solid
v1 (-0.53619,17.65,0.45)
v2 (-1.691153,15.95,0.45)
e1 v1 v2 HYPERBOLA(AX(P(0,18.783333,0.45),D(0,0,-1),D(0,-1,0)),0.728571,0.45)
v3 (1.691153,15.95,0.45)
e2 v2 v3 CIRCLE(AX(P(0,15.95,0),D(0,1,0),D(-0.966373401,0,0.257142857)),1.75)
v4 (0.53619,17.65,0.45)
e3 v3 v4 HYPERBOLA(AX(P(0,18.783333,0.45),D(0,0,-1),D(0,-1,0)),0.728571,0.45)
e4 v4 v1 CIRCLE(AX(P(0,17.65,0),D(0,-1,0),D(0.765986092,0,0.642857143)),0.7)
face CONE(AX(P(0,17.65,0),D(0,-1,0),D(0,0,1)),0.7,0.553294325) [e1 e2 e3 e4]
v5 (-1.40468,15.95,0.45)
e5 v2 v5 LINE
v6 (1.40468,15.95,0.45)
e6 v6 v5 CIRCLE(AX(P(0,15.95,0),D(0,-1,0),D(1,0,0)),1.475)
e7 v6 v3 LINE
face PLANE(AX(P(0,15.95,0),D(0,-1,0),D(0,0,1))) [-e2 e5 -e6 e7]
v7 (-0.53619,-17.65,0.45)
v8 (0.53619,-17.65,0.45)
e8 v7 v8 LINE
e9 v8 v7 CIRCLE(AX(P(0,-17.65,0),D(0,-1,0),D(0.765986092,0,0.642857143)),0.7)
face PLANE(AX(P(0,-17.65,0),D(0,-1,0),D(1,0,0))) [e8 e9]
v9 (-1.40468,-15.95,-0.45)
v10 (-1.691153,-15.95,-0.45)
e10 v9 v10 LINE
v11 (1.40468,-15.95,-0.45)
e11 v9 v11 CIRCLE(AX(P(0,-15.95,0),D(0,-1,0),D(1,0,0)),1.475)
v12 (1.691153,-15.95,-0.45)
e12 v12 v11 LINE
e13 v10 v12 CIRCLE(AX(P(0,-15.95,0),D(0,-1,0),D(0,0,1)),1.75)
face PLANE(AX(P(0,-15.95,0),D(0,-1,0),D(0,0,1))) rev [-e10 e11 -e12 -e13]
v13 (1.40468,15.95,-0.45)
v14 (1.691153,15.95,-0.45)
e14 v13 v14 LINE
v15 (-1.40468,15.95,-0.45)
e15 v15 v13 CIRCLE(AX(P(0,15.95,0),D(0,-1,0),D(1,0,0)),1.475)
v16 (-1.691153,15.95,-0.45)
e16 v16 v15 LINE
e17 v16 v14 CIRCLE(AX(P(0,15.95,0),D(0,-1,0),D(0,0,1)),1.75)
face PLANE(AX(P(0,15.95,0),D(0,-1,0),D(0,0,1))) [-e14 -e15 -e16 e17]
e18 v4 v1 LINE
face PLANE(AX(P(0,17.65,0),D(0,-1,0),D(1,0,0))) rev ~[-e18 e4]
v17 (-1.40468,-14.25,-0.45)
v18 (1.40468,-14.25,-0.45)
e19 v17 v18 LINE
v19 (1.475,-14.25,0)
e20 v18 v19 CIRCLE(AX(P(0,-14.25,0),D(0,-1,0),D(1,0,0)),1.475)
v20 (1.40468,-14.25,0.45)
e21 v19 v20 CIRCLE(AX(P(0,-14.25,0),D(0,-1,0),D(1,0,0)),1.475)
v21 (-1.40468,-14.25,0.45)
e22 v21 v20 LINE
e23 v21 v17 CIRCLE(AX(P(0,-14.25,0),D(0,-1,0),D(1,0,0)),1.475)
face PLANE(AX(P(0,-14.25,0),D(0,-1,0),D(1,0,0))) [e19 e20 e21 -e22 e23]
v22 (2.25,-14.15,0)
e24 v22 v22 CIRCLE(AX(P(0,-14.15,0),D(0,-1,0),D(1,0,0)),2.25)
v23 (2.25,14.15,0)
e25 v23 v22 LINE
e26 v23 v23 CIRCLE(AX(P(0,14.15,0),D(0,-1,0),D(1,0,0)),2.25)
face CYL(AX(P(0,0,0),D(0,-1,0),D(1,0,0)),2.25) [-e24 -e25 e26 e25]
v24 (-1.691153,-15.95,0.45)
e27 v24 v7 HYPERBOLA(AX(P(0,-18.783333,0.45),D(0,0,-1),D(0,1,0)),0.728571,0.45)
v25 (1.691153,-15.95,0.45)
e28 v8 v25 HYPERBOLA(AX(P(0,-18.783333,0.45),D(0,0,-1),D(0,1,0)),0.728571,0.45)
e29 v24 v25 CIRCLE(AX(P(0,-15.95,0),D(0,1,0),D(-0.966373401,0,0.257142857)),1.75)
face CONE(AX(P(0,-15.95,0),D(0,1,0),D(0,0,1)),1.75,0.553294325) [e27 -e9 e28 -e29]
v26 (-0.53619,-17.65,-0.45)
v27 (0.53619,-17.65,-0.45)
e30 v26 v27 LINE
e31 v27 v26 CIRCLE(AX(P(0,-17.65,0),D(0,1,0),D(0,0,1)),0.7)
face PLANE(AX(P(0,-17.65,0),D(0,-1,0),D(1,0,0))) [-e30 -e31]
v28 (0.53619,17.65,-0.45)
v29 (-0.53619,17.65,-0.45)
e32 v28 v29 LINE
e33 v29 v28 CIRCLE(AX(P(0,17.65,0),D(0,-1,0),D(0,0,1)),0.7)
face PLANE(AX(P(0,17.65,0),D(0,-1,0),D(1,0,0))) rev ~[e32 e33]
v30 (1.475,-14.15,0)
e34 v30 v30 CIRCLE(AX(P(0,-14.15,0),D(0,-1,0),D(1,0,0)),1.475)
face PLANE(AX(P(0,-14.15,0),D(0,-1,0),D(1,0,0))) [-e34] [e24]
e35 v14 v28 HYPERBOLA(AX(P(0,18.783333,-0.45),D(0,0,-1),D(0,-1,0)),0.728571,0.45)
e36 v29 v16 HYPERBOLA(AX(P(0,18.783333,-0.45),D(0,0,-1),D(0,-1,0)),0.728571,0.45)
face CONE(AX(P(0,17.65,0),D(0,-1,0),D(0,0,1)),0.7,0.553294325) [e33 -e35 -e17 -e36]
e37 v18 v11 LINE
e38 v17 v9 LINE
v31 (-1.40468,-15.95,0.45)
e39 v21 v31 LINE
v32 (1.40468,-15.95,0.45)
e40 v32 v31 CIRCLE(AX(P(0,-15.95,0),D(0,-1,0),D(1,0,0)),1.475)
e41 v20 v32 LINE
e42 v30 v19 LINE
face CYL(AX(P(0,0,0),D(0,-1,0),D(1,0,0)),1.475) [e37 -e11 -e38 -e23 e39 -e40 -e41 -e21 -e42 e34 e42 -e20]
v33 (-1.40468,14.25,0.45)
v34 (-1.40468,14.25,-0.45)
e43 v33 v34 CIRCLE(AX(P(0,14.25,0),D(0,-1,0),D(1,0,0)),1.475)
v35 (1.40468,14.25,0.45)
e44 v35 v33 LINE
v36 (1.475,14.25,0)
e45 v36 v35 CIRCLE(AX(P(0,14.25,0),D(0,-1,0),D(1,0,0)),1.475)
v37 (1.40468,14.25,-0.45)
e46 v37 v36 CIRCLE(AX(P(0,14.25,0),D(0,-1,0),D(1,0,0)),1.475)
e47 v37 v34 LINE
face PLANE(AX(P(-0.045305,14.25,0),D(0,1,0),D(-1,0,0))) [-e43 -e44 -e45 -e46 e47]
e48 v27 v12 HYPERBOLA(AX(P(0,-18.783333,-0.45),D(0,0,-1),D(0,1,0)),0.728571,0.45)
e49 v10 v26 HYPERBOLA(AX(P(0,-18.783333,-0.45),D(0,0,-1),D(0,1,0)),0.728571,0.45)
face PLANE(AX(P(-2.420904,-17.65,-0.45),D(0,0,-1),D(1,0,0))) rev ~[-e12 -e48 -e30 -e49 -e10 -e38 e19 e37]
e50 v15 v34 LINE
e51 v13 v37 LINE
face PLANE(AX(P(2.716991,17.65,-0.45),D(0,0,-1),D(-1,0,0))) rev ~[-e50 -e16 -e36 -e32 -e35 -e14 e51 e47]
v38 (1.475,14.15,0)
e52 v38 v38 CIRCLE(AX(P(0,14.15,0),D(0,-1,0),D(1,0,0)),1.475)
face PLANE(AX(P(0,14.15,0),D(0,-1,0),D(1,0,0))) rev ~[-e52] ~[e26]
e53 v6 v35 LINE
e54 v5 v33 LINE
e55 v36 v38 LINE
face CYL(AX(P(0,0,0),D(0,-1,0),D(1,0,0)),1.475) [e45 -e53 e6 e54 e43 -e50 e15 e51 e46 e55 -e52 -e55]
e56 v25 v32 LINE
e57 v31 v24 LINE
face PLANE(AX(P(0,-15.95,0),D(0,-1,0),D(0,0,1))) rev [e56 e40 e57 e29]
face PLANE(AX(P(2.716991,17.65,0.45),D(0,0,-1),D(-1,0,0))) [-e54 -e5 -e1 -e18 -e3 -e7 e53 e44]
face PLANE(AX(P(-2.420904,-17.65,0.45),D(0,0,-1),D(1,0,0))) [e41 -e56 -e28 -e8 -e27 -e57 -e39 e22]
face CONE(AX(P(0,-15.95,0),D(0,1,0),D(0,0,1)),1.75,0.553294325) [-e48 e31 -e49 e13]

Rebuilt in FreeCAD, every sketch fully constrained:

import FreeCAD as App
import Part
import Sketcher


def add_polygon(sketch, points):
    """Adds a closed chain of lines whose ends are joined by coincident constraints."""
    first, n = sketch.GeometryCount, len(points)
    for a, b in zip(points, points[1:] + points[:1]):
        sketch.addGeometry(Part.LineSegment(App.Vector(*a, 0), App.Vector(*b, 0)), False)
    for i in range(n):
        sketch.addConstraint(Sketcher.Constraint("Coincident", first + i, 2, first + (i + 1) % n, 1))

doc = App.newDocument("Part")
params = doc.addObject("Spreadsheet::Sheet", "Params")
for row, (alias, value) in enumerate([
    ("sketch1_diameter", "1.4 mm"),
    ("pad1_length", "35.3 mm"),
    ("sketch2_diameter", "1.4 mm"),
    ("sketch2_diameter2", "2.95 mm"),
    ("pad2_length", "31.9 mm"),
    ("sketch3_diameter", "4.5 mm"),
    ("sketch3_diameter2", "2.95 mm"),
    ("pad3_length", "28.3 mm"),
    ("sketch4_width", "1.7 mm"),
    ("sketch4_height", "1.05 mm"),
    ("revolution_angle", "360 deg"),
    ("sketch5_height", "0.9 mm"),
    ("pocket1_length", "3.4 mm"),
    ("sketch6_height", "0.9 mm"),
    ("pocket2_length", "3.4 mm"),
], start=1):
    params.set(f"A{row}", alias)
    params.set(f"B{row}", "=" + value)
    params.setAlias(f"B{row}", alias)

body = doc.addObject("PartDesign::Body", "Body")

sketch1 = doc.addObject("Sketcher::SketchObject", "Sketch")
body.addObject(sketch1)
sketch1.AttachmentSupport = (doc.XZ_Plane, [""])
sketch1.MapMode = "FlatFace"
sketch1.addGeometry(Part.Circle(App.Vector(0, 0, 0), App.Vector(0, 0, 1), 0.7), False)
sketch1.addConstraint(Sketcher.Constraint("Coincident", 0, 3, -1, 1))
sketch1.addConstraint(Sketcher.Constraint("Diameter", 0, 1.4))
sketch1.setExpression("Constraints[1]", "Params.sketch1_diameter")
pad1 = doc.addObject("PartDesign::Pad", "Pad")
body.addObject(pad1)
pad1.Profile = sketch1
pad1.setExpression("Length", "Params.pad1_length")
pad1.Midplane = True

sketch2 = doc.addObject("Sketcher::SketchObject", "Sketch001")
body.addObject(sketch2)
sketch2.AttachmentSupport = (doc.XZ_Plane, [""])
sketch2.MapMode = "FlatFace"
sketch2.addGeometry(Part.Circle(App.Vector(0, 0, 0), App.Vector(0, 0, 1), 1.5), False)
sketch2.addGeometry(Part.Circle(App.Vector(0, 0, 0), App.Vector(0, 0, 1), 0.7), False)
sketch2.addConstraint(Sketcher.Constraint("Coincident", 0, 3, -1, 1))
sketch2.addConstraint(Sketcher.Constraint("Coincident", 1, 3, -1, 1))
sketch2.addConstraint(Sketcher.Constraint("Diameter", 1, 1.4))
sketch2.addConstraint(Sketcher.Constraint("Diameter", 0, 2.95))
sketch2.setExpression("Constraints[2]", "Params.sketch2_diameter")
sketch2.setExpression("Constraints[3]", "Params.sketch2_diameter2")
pad2 = doc.addObject("PartDesign::Pad", "Pad001")
body.addObject(pad2)
pad2.Profile = sketch2
pad2.setExpression("Length", "Params.pad2_length")
pad2.Midplane = True

sketch3 = doc.addObject("Sketcher::SketchObject", "Sketch002")
body.addObject(sketch3)
sketch3.AttachmentSupport = (doc.XZ_Plane, [""])
sketch3.MapMode = "FlatFace"
sketch3.addGeometry(Part.Circle(App.Vector(0, 0, 0), App.Vector(0, 0, 1), 2.2), False)
sketch3.addGeometry(Part.Circle(App.Vector(0, 0, 0), App.Vector(0, 0, 1), 1.5), False)
sketch3.addConstraint(Sketcher.Constraint("Coincident", 0, 3, -1, 1))
sketch3.addConstraint(Sketcher.Constraint("Coincident", 1, 3, -1, 1))
sketch3.addConstraint(Sketcher.Constraint("Diameter", 0, 4.5))
sketch3.addConstraint(Sketcher.Constraint("Diameter", 1, 2.95))
sketch3.setExpression("Constraints[2]", "Params.sketch3_diameter")
sketch3.setExpression("Constraints[3]", "Params.sketch3_diameter2")
pad3 = doc.addObject("PartDesign::Pad", "Pad002")
body.addObject(pad3)
pad3.Profile = sketch3
pad3.setExpression("Length", "Params.pad3_length")
pad3.Midplane = True

sketch4 = doc.addObject("Sketcher::SketchObject", "Sketch003")
body.addObject(sketch4)
sketch4.AttachmentSupport = (doc.YZ_Plane, [""])
sketch4.MapMode = "FlatFace"
add_polygon(sketch4, [(15.9, 0.7), (17.6, 0.7), (15.9, 1.8)])
add_polygon(sketch4, [(-17.6, 0.7), (-15.9, 0.7), (-15.9, 1.8)])
sketch4.addConstraint(Sketcher.Constraint("Horizontal", 0))
sketch4.addConstraint(Sketcher.Constraint("Vertical", 2))
sketch4.addConstraint(Sketcher.Constraint("Horizontal", 3))
sketch4.addConstraint(Sketcher.Constraint("Vertical", 4))
sketch4.addConstraint(Sketcher.Constraint("Symmetric", 2, 2, 3, 2, -2))
sketch4.addConstraint(Sketcher.Constraint("Horizontal", 1, 2, 4, 2))
sketch4.addConstraint(Sketcher.Constraint("Equal", 0, 3))
sketch4.addConstraint(Sketcher.Constraint("DistanceX", 0, 1, 0, 2, 1.7))
sketch4.addConstraint(Sketcher.Constraint("DistanceY", 2, 2, 2, 1, 1.05))
sketch4.addConstraint(Sketcher.Constraint("DistanceY", -1, 1, 0, 2, 0.7))
sketch4.addConstraint(Sketcher.Constraint("DistanceX", 3, 2, 2, 2, 31.9))
sketch4.setExpression("Constraints[13]", "Params.sketch4_width")
sketch4.setExpression("Constraints[14]", "Params.sketch4_height")
revolution = doc.addObject("PartDesign::Revolution", "Revolution")
body.addObject(revolution)
revolution.Profile = sketch4
revolution.ReferenceAxis = (sketch4, ["H_Axis"])
revolution.setExpression("Angle", "Params.revolution_angle")

sketch5 = doc.addObject("Sketcher::SketchObject", "Sketch004")
body.addObject(sketch5)
sketch5.AttachmentSupport = (doc.XZ_Plane, [""])
sketch5.MapMode = "FlatFace"
sketch5.AttachmentOffset = App.Placement(App.Vector(0, 0, -17.65), App.Rotation())
add_polygon(sketch5, [(2.7, 0.5), (2.7, -0.5), (-2.8, -0.5), (-2.8, 0.5)])
sketch5.addConstraint(Sketcher.Constraint("Vertical", 0))
sketch5.addConstraint(Sketcher.Constraint("Horizontal", 1))
sketch5.addConstraint(Sketcher.Constraint("Vertical", 2))
sketch5.addConstraint(Sketcher.Constraint("Horizontal", 3))
sketch5.addConstraint(Sketcher.Constraint("DistanceY", 0, 2, 0, 1, 0.9))
sketch5.addConstraint(Sketcher.Constraint("DistanceY", 0, 2, -1, 1, 0.45))
sketch5.addConstraint(Sketcher.Constraint("DistanceX", 1, 2, 1, 1, 5.524591))
sketch5.addConstraint(Sketcher.Constraint("DistanceX", 1, 2, -1, 1, 2.8076))
sketch5.setExpression("Constraints[8]", "Params.sketch5_height")
pocket1 = doc.addObject("PartDesign::Pocket", "Pocket")
body.addObject(pocket1)
pocket1.Profile = sketch5
pocket1.setExpression("Length", "Params.pocket1_length")
pocket1.Reversed = True

sketch6 = doc.addObject("Sketcher::SketchObject", "Sketch005")
body.addObject(sketch6)
sketch6.AttachmentSupport = (doc.XZ_Plane, [""])
sketch6.MapMode = "FlatFace"
sketch6.AttachmentOffset = App.Placement(App.Vector(0, 0, 17.65), App.Rotation())
add_polygon(sketch6, [(-2.4, 0.5), (-2.4, -0.5), (2.4, -0.5), (2.4, 0.5)])
sketch6.addConstraint(Sketcher.Constraint("Vertical", 0))
sketch6.addConstraint(Sketcher.Constraint("Horizontal", 1))
sketch6.addConstraint(Sketcher.Constraint("Vertical", 2))
sketch6.addConstraint(Sketcher.Constraint("Horizontal", 3))
sketch6.addConstraint(Sketcher.Constraint("Symmetric", 0, 2, 2, 2, -1, 1))
sketch6.addConstraint(Sketcher.Constraint("DistanceY", 0, 2, 0, 1, 0.9))
sketch6.addConstraint(Sketcher.Constraint("DistanceX", 1, 1, 1, 2, 4.841808))
sketch6.setExpression("Constraints[9]", "Params.sketch6_height")
pocket2 = doc.addObject("PartDesign::Pocket", "Pocket001")
body.addObject(pocket2)
pocket2.Profile = sketch6
pocket2.setExpression("Length", "Params.pocket2_length")

doc.recompute()
